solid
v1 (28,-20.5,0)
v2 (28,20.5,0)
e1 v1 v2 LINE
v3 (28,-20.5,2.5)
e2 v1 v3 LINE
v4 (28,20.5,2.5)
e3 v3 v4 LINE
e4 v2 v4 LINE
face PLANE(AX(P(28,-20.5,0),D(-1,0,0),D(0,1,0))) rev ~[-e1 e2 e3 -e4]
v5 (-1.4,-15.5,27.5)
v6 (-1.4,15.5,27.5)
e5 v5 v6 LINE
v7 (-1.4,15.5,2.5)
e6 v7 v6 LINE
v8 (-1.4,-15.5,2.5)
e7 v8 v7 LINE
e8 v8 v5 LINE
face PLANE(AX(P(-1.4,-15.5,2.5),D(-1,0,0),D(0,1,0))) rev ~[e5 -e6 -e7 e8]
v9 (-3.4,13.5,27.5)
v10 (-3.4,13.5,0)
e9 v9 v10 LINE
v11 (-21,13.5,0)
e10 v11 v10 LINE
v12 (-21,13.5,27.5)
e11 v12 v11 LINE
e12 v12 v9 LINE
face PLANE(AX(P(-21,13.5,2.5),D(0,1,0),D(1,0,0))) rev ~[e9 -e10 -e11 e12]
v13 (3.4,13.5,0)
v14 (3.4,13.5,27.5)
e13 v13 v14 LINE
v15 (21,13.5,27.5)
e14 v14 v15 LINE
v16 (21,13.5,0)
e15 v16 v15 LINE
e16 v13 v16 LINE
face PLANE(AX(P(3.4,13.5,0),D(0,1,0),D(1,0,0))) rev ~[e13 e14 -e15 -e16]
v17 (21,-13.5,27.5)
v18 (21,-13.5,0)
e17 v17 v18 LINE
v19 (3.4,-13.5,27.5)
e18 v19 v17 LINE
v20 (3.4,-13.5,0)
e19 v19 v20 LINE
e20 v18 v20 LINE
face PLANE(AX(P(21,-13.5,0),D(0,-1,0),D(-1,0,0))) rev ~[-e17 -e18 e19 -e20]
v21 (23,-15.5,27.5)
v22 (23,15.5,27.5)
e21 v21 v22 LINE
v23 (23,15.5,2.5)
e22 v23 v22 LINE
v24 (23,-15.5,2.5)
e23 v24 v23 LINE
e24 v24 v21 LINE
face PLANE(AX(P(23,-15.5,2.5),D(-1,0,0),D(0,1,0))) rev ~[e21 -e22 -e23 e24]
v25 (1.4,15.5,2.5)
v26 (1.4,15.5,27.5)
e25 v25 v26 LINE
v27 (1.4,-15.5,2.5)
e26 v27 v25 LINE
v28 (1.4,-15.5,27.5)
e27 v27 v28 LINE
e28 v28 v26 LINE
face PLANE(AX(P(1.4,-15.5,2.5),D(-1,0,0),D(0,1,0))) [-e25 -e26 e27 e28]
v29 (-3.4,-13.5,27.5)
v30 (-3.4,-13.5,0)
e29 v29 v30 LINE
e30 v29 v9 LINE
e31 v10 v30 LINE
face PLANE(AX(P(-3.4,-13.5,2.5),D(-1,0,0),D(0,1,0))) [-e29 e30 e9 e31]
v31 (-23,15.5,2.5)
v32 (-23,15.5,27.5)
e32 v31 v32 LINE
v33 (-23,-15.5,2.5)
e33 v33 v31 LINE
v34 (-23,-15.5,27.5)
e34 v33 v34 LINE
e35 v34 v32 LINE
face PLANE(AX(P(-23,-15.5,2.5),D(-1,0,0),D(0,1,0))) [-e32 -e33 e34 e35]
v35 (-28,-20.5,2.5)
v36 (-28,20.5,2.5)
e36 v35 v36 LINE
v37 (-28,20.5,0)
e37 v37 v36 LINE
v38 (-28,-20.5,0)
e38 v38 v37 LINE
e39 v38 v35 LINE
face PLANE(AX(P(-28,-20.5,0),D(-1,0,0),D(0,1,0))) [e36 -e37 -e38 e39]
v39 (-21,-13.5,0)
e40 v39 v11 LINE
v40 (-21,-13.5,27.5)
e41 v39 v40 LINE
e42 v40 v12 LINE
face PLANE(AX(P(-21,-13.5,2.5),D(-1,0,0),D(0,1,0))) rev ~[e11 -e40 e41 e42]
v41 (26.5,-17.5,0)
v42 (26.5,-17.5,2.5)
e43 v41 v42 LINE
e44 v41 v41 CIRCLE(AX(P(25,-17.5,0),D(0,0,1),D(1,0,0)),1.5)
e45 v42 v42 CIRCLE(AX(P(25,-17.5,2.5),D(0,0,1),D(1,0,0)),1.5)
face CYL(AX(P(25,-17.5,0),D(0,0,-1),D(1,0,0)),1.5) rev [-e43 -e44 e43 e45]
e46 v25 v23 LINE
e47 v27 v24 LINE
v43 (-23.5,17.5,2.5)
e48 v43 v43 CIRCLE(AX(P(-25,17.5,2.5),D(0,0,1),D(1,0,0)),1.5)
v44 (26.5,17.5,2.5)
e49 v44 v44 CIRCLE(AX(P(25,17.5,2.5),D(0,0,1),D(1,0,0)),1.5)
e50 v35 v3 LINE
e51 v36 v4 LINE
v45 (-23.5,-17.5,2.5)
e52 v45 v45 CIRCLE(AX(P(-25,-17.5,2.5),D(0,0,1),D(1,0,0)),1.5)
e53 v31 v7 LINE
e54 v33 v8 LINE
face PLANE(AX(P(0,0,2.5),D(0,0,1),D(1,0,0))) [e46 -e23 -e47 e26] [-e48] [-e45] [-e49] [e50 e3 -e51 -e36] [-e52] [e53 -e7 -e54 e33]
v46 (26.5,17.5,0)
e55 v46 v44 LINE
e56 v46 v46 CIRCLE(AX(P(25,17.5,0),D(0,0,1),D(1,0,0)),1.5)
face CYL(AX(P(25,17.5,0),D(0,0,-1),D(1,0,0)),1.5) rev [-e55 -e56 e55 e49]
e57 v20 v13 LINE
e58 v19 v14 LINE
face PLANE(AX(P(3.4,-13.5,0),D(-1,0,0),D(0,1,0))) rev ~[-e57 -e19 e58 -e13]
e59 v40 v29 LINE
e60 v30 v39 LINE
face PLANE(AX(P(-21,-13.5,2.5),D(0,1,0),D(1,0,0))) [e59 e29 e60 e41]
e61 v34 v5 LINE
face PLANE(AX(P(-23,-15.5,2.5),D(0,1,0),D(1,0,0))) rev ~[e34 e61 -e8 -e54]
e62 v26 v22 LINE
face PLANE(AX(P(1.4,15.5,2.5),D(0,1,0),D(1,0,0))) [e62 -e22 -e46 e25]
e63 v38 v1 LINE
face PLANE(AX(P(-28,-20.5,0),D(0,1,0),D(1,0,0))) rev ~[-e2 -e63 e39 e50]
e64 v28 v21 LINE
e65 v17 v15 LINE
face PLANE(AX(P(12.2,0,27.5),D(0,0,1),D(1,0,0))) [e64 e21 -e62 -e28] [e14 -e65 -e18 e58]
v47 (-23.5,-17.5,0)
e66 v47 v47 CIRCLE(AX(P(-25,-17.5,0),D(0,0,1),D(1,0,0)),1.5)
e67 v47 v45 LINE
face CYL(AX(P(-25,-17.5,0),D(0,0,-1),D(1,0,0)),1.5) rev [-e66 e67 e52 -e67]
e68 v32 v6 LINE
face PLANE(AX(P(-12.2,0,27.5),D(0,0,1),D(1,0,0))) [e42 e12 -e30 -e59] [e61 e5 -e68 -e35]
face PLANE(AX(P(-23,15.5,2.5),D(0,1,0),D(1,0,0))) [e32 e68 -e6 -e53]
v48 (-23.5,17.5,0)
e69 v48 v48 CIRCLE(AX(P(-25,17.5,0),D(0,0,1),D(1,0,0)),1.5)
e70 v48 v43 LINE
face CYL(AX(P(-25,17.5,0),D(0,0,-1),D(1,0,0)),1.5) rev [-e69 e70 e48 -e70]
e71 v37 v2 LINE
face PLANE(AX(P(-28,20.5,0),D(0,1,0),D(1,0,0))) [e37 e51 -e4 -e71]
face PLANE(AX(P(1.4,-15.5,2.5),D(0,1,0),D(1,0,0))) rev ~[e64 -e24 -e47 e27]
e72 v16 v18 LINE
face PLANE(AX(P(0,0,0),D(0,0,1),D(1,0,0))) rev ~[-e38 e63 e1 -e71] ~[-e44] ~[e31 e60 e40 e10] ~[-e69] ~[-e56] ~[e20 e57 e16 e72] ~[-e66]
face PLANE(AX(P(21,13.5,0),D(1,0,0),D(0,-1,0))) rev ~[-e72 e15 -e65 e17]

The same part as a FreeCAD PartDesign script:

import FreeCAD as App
import Part
import Sketcher

V = App.Vector


def add_polygon(sketch, points):
    """Adds a closed chain of lines whose ends are joined by coincident constraints."""
    first, n = sketch.GeometryCount, len(points)
    for a, b in zip(points, points[1:] + points[:1]):
        sketch.addGeometry(Part.LineSegment(App.Vector(*a, 0), App.Vector(*b, 0)), False)
    for i in range(n):
        sketch.addConstraint(Sketcher.Constraint("Coincident", first + i, 2, first + (i + 1) % n, 1))

doc = App.newDocument("Part")
params = doc.addObject("Spreadsheet::Sheet", "Params")
for row, (alias, value) in enumerate([
    ("sketch1_diameter", "3 mm"),
    ("sketch1_width", "56 mm"),
    ("sketch1_height", "41 mm"),
    ("sketch1_height2", "27 mm"),
    ("sketch1_width2", "17.6 mm"),
    ("pad1_length", "2.5 mm"),
    ("sketch2_height", "31 mm"),
    ("sketch2_height2", "27 mm"),
    ("sketch2_width", "21.6 mm"),
    ("sketch2_width2", "17.6 mm"),
    ("pad2_length", "25 mm"),
], start=1):
    params.set(f"A{row}", alias)
    params.set(f"B{row}", "=" + value)
    params.setAlias(f"B{row}", alias)

body = doc.addObject("PartDesign::Body", "Body")

sketch1 = body.newObject("Sketcher::SketchObject", "Sketch")
sketch1.AttachmentSupport = (doc.getObject("XY_Plane"), [""])
sketch1.MapMode = "FlatFace"
add_polygon(sketch1, [(-28, 20.5), (-28, -20.5), (28, -20.5), (28, 20.5)])
sketch1.addGeometry(Part.Circle(V(-25, -17.5, 0), V(0, 0, 1), 1.5), False)
sketch1.addGeometry(Part.Circle(V(25, -17.5, 0), V(0, 0, 1), 1.5), False)
add_polygon(sketch1, [(-3.4, -13.5), (-21, -13.5), (-21, 13.5), (-3.4, 13.5)])
sketch1.addGeometry(Part.Circle(V(-25, 17.5, 0), V(0, 0, 1), 1.5), False)
add_polygon(sketch1, [(3.4, -13.5), (3.4, 13.5), (21, 13.5), (21, -13.5)])
sketch1.addGeometry(Part.Circle(V(25, 17.5, 0), V(0, 0, 1), 1.5), False)
sketch1.addConstraint([
    Sketcher.Constraint("Vertical", 0),
    Sketcher.Constraint("Horizontal", 1),
    Sketcher.Constraint("Vertical", 2),
    Sketcher.Constraint("Horizontal", 3),
    Sketcher.Constraint("Horizontal", 6),
    Sketcher.Constraint("Vertical", 7),
    Sketcher.Constraint("Horizontal", 8),
    Sketcher.Constraint("Vertical", 9),
    Sketcher.Constraint("Vertical", 11),
    Sketcher.Constraint("Horizontal", 12),
    Sketcher.Constraint("Vertical", 13),
    Sketcher.Constraint("Horizontal", 14),
    Sketcher.Constraint("Equal", 4, 5),
    Sketcher.Constraint("Equal", 5, 10),
    Sketcher.Constraint("Equal", 10, 15),
    Sketcher.Constraint("Symmetric", 5, 3, 10, 3, -1, 1),
    Sketcher.Constraint("Symmetric", 4, 3, 15, 3, -1, 1),
    Sketcher.Constraint("Symmetric", 0, 2, 2, 2, -1, 1),
    Sketcher.Constraint("Symmetric", 9, 2, 11, 2, -1, 1),
    Sketcher.Constraint("Symmetric", 7, 2, 13, 2, -1, 1),
    Sketcher.Constraint("Symmetric", 4, 3, 5, 3, -2),
    Sketcher.Constraint("Horizontal", 8, 2, 11, 2),
    Sketcher.Constraint("Diameter", 4, 3.0),
    Sketcher.Constraint("DistanceX", 1, 1, 1, 2, 56.0),
    Sketcher.Constraint("DistanceY", 0, 2, 0, 1, 41.0),
    Sketcher.Constraint("DistanceY", 7, 1, 7, 2, 27.0),
    Sketcher.Constraint("DistanceX", 6, 2, 6, 1, 17.6),
    Sketcher.Constraint("DistanceX", 4, 3, -1, 1, 25.0),
    Sketcher.Constraint("DistanceX", 6, 2, -1, 1, 21.0),
    Sketcher.Constraint("DistanceY", 4, 3, 10, 3, 35.0),
])
sketch1.setExpression("Constraints[34]", "Params.sketch1_diameter")
sketch1.setExpression("Constraints[35]", "Params.sketch1_width")
sketch1.setExpression("Constraints[36]", "Params.sketch1_height")
sketch1.setExpression("Constraints[37]", "Params.sketch1_height2")
sketch1.setExpression("Constraints[38]", "Params.sketch1_width2")
pad1 = body.newObject("PartDesign::Pad", "Pad")
pad1.Profile = sketch1
pad1.setExpression("Length", "Params.pad1_length")

sketch2 = body.newObject("Sketcher::SketchObject", "Sketch001")
sketch2.AttachmentSupport = (doc.getObject("XY_Plane"), [""])
sketch2.MapMode = "FlatFace"
sketch2.AttachmentOffset = App.Placement(V(0, 0, 2.5), App.Rotation())
add_polygon(sketch2, [(-23, 15.5), (-23, -15.5), (-1.4, -15.5), (-1.4, 15.5)])
add_polygon(sketch2, [(-3.4, -13.5), (-21, -13.5), (-21, 13.5), (-3.4, 13.5)])
add_polygon(sketch2, [(1.4, 15.5), (1.4, -15.5), (23, -15.5), (23, 15.5)])
add_polygon(sketch2, [(21, -13.5), (3.4, -13.5), (3.4, 13.5), (21, 13.5)])
sketch2.addConstraint([
    Sketcher.Constraint("Vertical", 0),
    Sketcher.Constraint("Horizontal", 1),
    Sketcher.Constraint("Vertical", 2),
    Sketcher.Constraint("Horizontal", 3),
    Sketcher.Constraint("Horizontal", 4),
    Sketcher.Constraint("Vertical", 5),
    Sketcher.Constraint("Horizontal", 6),
    Sketcher.Constraint("Vertical", 7),
    Sketcher.Constraint("Vertical", 8),
    Sketcher.Constraint("Horizontal", 9),
    Sketcher.Constraint("Vertical", 10),
    Sketcher.Constraint("Horizontal", 11),
    Sketcher.Constraint("Horizontal", 12),
    Sketcher.Constraint("Vertical", 13),
    Sketcher.Constraint("Horizontal", 14),
    Sketcher.Constraint("Vertical", 15),
    Sketcher.Constraint("Symmetric", 2, 2, 8, 2, -1, 1),
    Sketcher.Constraint("Symmetric", 0, 2, 10, 2, -1, 1),
    Sketcher.Constraint("Symmetric", 6, 2, 12, 2, -1, 1),
    Sketcher.Constraint("Symmetric", 4, 2, 14, 2, -1, 1),
    Sketcher.Constraint("Horizontal", 1, 2, 8, 2),
    Sketcher.Constraint("Horizontal", 7, 2, 12, 2),
    Sketcher.Constraint("DistanceY", 0, 2, 0, 1, 31.0),
    Sketcher.Constraint("DistanceY", 5, 1, 5, 2, 27.0),
    Sketcher.Constraint("DistanceX", 1, 1, 1, 2, 21.6),
    Sketcher.Constraint("DistanceX", 4, 2, 4, 1, 17.6),
    Sketcher.Constraint("DistanceX", 0, 2, -1, 1, 23.0),
    Sketcher.Constraint("DistanceX", 4, 2, -1, 1, 21.0),
])
sketch2.setExpression("Constraints[38]", "Params.sketch2_height")
sketch2.setExpression("Constraints[39]", "Params.sketch2_height2")
sketch2.setExpression("Constraints[40]", "Params.sketch2_width")
sketch2.setExpression("Constraints[41]", "Params.sketch2_width2")
pad2 = body.newObject("PartDesign::Pad", "Pad001")
pad2.Profile = sketch2
pad2.setExpression("Length", "Params.pad2_length")

doc.recompute()
